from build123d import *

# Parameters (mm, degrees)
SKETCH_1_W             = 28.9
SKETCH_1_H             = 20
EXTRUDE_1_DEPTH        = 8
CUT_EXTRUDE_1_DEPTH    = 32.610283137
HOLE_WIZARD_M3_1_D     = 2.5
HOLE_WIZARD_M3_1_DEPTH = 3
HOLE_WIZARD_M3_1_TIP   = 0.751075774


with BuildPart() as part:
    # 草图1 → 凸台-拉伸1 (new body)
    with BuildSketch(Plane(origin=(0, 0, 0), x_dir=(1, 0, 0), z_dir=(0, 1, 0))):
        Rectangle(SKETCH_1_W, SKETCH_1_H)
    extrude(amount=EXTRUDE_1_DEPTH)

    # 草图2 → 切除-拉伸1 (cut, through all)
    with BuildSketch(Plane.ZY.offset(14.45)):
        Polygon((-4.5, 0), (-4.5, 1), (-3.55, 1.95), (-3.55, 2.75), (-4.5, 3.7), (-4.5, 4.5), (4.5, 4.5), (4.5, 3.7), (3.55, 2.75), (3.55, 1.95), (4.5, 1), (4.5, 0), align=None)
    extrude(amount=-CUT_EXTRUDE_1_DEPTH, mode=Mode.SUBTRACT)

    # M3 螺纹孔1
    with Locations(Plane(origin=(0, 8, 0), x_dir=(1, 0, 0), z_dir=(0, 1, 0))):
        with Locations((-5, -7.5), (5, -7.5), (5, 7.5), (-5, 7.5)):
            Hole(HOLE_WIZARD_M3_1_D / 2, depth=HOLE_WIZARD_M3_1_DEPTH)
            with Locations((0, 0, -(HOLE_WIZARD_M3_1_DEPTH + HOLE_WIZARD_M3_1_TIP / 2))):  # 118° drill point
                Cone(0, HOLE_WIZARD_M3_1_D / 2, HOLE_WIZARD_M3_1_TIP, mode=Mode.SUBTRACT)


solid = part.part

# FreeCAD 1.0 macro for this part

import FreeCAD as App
import Part
import Sketcher
from FreeCAD import Vector
Q = App.Units.Quantity


def add_polygon(sketch, points):
    """Adds a closed chain of lines whose ends are joined by coincident constraints."""
    first, n = sketch.GeometryCount, len(points)
    for a, b in zip(points, points[1:] + points[:1]):
        sketch.addGeometry(Part.LineSegment(App.Vector(*a, 0), App.Vector(*b, 0)), False)
    for i in range(n):
        sketch.addConstraint(Sketcher.Constraint("Coincident", first + i, 2, first + (i + 1) % n, 1))

doc = App.newDocument("Part")
params = doc.addObject("Spreadsheet::Sheet", "Params")
for row, (alias, value) in enumerate([
    ("sketch1_height", "20 mm"),
    ("sketch1_width", "28.9 mm"),
    ("pad1_length", "8 mm"),
    ("sketch2_width", "1 mm"),
    ("sketch2_height", "9 mm"),
    ("sketch2_width2", "0.8 mm"),
    ("sketch3_diameter", "2.5 mm"),
    ("hole_diameter", "2.5 mm"),
    ("hole_depth", "3 mm"),
], start=1):
    params.set(f"A{row}", alias)
    params.set(f"B{row}", "=" + value)
    params.setAlias(f"B{row}", alias)

body = doc.addObject("PartDesign::Body", "Body")

sketch1 = body.newObject("Sketcher::SketchObject", "Sketch")
sketch1.AttachmentSupport = (doc.getObject("XZ_Plane"), [""])
sketch1.MapMode = "FlatFace"
add_polygon(sketch1, [(-14, -10), (-14, 10), (14, 10), (14, -10)])
sketch1.addConstraint(Sketcher.Constraint("Vertical", 0))
sketch1.addConstraint(Sketcher.Constraint("Horizontal", 1))
sketch1.addConstraint(Sketcher.Constraint("Vertical", 2))
sketch1.addConstraint(Sketcher.Constraint("Horizontal", 3))
sketch1.addConstraint(Sketcher.Constraint("Symmetric", 0, 2, 2, 2, -1, 1))
sketch1.addConstraint(Sketcher.Constraint("DistanceY", 0, 1, 0, 2, Q("20 mm")))
sketch1.addConstraint(Sketcher.Constraint("DistanceX", 1, 1, 1, 2, Q("28.9 mm")))
sketch1.setExpression("Constraints[9]", "Params.sketch1_height")
sketch1.setExpression("Constraints[10]", "Params.sketch1_width")
pad1 = body.newObject("PartDesign::Pad", "Pad")
pad1.Profile = sketch1
pad1.setExpression("Length", "Params.pad1_length")
pad1.Reversed = True

sketch2 = body.newObject("Sketcher::SketchObject", "Sketch001")
sketch2.AttachmentSupport = (doc.getObject("YZ_Plane"), [""])
sketch2.MapMode = "FlatFace"
sketch2.AttachmentOffset = App.Placement(Vector(0, 0, -14.45), App.Rotation())
add_polygon(sketch2, [(1, -4.5), (0, -4.5), (0, 4.5), (1, 4.5), (1.9, 3.5), (2.8, 3.5), (3.7, 4.5), (4.5, 4.5), (4.5, -4.5), (3.7, -4.5), (2.8, -3.5), (1.9, -3.5)])
sketch2.addConstraint(Sketcher.Constraint("Horizontal", 0))
sketch2.addConstraint(Sketcher.Constraint("Vertical", 1))
sketch2.addConstraint(Sketcher.Constraint("Horizontal", 2))
sketch2.addConstraint(Sketcher.Constraint("Horizontal", 4))
sketch2.addConstraint(Sketcher.Constraint("Horizontal", 6))
sketch2.addConstraint(Sketcher.Constraint("Vertical", 7))
sketch2.addConstraint(Sketcher.Constraint("Horizontal", 8))
sketch2.addConstraint(Sketcher.Constraint("Horizontal", 10))
sketch2.addConstraint(Sketcher.Constraint("Symmetric", 0, 2, 1, 2, -1, 1))
sketch2.addConstraint(Sketcher.Constraint("Symmetric", 5, 2, 8, 2, -1))
sketch2.addConstraint(Sketcher.Constraint("Symmetric", 4, 2, 9, 2, -1))
sketch2.addConstraint(Sketcher.Constraint("Perpendicular", 3, 5))
sketch2.addConstraint(Sketcher.Constraint("Perpendicular", 5, 9))
sketch2.addConstraint(Sketcher.Constraint("Perpendicular", 9, 11))
sketch2.addConstraint(Sketcher.Constraint("Horizontal", 2, 2, 5, 2))
sketch2.addConstraint(Sketcher.Constraint("Vertical", 3, 2, 10, 2))
sketch2.addConstraint(Sketcher.Constraint("Equal", 4, 6))
sketch2.addConstraint(Sketcher.Constraint("DistanceX", 0, 2, 0, 1, Q("1 mm")))
sketch2.addConstraint(Sketcher.Constraint("DistanceY", 1, 1, 1, 2, Q("9 mm")))
sketch2.addConstraint(Sketcher.Constraint("DistanceX", 4, 1, 4, 2, Q("0.8 mm")))
sketch2.addConstraint(Sketcher.Constraint("DistanceX", -1, 1, 5, 2, Q("3.7 mm")))
sketch2.setExpression("Constraints[29]", "Params.sketch2_width")
sketch2.setExpression("Constraints[30]", "Params.sketch2_height")
sketch2.setExpression("Constraints[31]", "Params.sketch2_width2")
pocket1 = body.newObject("PartDesign::Pocket", "Pocket")
pocket1.Profile = sketch2
pocket1.Type = "ThroughAll"
pocket1.Reversed = True

sketch3 = body.newObject("Sketcher::SketchObject", "Sketch002")
sketch3.AttachmentSupport = (doc.getObject("XZ_Plane"), [""])
sketch3.MapMode = "FlatFace"
sketch3.AttachmentOffset = App.Placement(Vector(0, 0, -8), App.Rotation())
sketch3.addGeometry(Part.Circle(Vector(-5, 7.5, 0), Vector(0, 0, 1), 1.2), False)
sketch3.addGeometry(Part.Circle(Vector(5, 7.5, 0), Vector(0, 0, 1), 1.2), False)
sketch3.addGeometry(Part.Circle(Vector(5, -7.5, 0), Vector(0, 0, 1), 1.2), False)
sketch3.addGeometry(Part.Circle(Vector(-5, -7.5, 0), Vector(0, 0, 1), 1.2), False)
sketch3.addConstraint(Sketcher.Constraint("Equal", 0, 1))
sketch3.addConstraint(Sketcher.Constraint("Equal", 1, 2))
sketch3.addConstraint(Sketcher.Constraint("Equal", 2, 3))
sketch3.addConstraint(Sketcher.Constraint("Symmetric", 0, 3, 2, 3, -1, 1))
sketch3.addConstraint(Sketcher.Constraint("Symmetric", 1, 3, 3, 3, -1, 1))
sketch3.addConstraint(Sketcher.Constraint("Symmetric", 0, 3, 1, 3, -2))
sketch3.addConstraint(Sketcher.Constraint("Diameter", 0, Q("2.5 mm")))
sketch3.addConstraint(Sketcher.Constraint("DistanceX", 0, 3, -1, 1, Q("5 mm")))
sketch3.addConstraint(Sketcher.Constraint("DistanceY", 2, 3, 1, 3, Q("15 mm")))
sketch3.setExpression("Constraints[6]", "Params.sketch3_diameter")
doc.recompute()
hole = body.newObject("PartDesign::Hole", "Hole")
hole.Profile = sketch3
hole.ThreadType = "None"
hole.setExpression("Diameter", "Params.hole_diameter")
hole.DepthType = "Dimension"
hole.setExpression("Depth", "Params.hole_depth")
hole.DrillPoint = "Angled"
hole.DrillPointAngle = 118
hole.Reversed = True

doc.recompute()
